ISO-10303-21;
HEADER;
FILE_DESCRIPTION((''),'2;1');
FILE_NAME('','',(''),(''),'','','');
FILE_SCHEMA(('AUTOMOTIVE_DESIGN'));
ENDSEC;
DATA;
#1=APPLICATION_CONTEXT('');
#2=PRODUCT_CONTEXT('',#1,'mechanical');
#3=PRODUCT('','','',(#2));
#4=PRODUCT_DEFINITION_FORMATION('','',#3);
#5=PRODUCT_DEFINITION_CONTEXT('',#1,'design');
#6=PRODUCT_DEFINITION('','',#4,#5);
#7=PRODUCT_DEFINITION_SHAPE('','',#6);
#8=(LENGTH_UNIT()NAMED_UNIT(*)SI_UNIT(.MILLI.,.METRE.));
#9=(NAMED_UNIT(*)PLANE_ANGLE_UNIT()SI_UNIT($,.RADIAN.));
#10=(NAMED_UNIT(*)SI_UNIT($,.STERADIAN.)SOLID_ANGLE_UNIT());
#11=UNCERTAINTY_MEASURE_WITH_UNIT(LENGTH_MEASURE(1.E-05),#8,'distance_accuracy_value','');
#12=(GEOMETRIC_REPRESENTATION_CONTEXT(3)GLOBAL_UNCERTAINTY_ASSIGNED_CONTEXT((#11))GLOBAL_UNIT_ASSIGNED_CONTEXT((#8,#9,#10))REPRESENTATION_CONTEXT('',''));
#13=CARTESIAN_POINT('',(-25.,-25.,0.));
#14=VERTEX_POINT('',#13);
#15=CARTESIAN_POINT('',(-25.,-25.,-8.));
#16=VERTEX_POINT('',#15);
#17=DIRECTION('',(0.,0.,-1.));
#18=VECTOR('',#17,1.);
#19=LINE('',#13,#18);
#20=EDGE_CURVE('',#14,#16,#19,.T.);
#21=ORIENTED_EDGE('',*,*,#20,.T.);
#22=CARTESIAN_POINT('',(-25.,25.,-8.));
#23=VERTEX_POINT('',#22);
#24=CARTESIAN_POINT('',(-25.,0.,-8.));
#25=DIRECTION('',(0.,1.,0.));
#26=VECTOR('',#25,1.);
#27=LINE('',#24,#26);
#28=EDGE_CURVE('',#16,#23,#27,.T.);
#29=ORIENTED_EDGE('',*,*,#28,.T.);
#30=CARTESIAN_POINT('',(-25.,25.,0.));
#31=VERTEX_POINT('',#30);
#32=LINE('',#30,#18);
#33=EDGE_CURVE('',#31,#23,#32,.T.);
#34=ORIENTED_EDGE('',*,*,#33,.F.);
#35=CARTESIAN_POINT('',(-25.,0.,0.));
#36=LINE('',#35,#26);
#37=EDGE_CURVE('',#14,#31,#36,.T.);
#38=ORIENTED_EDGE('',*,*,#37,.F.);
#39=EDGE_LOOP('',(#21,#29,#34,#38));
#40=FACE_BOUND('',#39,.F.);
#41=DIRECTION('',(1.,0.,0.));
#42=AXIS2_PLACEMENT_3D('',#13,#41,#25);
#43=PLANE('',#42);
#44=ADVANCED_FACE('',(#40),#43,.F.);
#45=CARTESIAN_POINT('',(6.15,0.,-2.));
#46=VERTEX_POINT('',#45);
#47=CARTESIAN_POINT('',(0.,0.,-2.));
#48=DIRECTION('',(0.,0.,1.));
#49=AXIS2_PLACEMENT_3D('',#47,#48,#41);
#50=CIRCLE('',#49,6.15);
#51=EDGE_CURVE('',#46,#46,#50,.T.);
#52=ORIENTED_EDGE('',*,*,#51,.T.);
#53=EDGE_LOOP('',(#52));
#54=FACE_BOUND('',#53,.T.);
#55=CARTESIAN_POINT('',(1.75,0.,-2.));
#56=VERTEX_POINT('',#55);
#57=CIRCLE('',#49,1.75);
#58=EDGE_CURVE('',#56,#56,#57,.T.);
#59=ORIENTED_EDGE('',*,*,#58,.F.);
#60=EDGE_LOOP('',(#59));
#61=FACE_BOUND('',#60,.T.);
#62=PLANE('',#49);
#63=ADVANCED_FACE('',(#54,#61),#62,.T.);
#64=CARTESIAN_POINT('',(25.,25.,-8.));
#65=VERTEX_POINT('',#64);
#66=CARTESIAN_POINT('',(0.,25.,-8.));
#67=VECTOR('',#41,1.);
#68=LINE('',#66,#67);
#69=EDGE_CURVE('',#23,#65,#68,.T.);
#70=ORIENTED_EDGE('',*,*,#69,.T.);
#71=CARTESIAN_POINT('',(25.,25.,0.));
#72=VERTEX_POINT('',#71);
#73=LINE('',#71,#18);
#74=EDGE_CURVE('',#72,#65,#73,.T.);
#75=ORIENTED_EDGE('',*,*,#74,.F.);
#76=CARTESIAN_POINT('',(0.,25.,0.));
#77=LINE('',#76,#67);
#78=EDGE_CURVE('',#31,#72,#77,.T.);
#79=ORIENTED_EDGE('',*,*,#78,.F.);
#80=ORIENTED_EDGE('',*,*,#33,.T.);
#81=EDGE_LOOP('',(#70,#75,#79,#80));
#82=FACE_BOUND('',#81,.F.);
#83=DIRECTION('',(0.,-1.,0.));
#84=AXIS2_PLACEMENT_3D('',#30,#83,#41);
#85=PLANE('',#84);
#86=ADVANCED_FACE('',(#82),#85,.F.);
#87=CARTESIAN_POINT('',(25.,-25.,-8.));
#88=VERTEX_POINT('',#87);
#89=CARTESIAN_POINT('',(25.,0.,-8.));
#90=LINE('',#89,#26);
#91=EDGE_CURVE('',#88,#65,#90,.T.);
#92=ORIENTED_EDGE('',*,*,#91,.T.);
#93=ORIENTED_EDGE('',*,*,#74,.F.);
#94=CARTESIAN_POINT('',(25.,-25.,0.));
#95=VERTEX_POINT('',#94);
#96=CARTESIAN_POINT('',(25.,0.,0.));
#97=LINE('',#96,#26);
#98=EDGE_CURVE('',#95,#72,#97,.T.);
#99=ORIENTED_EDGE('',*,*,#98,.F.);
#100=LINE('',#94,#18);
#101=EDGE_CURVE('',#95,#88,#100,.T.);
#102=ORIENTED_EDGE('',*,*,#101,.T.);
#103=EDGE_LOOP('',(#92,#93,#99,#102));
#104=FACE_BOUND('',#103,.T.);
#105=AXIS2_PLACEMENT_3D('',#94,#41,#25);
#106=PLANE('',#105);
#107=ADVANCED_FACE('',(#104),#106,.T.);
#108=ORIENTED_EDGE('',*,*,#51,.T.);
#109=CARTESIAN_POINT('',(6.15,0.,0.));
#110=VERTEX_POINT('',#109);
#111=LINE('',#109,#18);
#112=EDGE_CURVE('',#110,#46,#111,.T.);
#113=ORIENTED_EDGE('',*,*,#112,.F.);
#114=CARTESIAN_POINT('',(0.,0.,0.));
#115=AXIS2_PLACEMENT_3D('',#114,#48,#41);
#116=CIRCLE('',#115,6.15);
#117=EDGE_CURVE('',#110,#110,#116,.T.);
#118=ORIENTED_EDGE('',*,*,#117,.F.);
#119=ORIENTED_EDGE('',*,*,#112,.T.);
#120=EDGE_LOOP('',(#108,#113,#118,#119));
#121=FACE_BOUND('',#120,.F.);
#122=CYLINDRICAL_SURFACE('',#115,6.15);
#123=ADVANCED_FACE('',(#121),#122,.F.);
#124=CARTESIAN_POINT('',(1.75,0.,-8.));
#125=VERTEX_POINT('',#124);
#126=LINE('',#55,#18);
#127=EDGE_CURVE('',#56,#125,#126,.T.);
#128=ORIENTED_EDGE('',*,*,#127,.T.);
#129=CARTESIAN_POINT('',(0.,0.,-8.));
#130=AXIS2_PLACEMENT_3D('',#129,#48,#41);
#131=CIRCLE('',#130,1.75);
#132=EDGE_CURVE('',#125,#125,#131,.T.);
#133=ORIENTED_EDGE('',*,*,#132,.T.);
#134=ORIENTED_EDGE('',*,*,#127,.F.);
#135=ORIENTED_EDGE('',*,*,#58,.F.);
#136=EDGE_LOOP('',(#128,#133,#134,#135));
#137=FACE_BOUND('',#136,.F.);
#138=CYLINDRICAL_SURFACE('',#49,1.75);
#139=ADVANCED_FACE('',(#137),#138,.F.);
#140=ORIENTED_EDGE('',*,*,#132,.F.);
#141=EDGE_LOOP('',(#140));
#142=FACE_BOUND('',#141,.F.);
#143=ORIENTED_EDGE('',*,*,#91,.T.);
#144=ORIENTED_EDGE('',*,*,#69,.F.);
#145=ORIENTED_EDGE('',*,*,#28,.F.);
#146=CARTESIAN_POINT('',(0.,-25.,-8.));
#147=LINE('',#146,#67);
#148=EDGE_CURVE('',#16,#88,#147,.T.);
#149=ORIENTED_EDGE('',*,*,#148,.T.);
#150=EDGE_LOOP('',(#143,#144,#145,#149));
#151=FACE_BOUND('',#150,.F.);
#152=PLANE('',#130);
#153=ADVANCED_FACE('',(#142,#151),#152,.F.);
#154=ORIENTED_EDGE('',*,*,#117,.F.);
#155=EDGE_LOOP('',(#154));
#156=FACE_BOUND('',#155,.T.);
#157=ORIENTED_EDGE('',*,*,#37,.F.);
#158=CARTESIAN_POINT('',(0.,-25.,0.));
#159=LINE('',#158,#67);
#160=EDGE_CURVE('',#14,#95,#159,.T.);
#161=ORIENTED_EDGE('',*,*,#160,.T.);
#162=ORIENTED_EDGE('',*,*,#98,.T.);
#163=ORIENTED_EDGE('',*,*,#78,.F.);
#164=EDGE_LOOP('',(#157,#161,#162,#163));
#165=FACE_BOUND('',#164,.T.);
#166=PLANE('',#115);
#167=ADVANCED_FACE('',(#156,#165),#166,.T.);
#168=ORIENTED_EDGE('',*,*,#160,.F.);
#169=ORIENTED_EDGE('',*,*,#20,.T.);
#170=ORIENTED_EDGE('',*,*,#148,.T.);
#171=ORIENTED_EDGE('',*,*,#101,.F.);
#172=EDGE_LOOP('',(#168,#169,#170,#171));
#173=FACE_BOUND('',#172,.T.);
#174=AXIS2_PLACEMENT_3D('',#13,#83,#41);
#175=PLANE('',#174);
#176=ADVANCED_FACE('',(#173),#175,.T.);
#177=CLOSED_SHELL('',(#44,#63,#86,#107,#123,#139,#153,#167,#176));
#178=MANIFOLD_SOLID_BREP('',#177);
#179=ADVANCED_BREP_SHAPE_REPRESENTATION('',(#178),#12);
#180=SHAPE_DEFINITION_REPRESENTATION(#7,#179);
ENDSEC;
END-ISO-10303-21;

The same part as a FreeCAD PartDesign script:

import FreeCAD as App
import Part
import Sketcher
from FreeCAD import Vector


def add_polygon(sketch, points):
    """Adds a closed chain of lines whose ends are joined by coincident constraints."""
    first, n = sketch.GeometryCount, len(points)
    for a, b in zip(points, points[1:] + points[:1]):
        sketch.addGeometry(Part.LineSegment(App.Vector(*a, 0), App.Vector(*b, 0)), False)
    for i in range(n):
        sketch.addConstraint(Sketcher.Constraint("Coincident", first + i, 2, first + (i + 1) % n, 1))

doc = App.newDocument("Part")
body = doc.addObject("PartDesign::Body", "Body")

sketch1 = body.newObject("Sketcher::SketchObject", "Sketch")
sketch1.AttachmentSupport = (doc.getObject("XY_Plane"), [""])
sketch1.MapMode = "FlatFace"
add_polygon(sketch1, [(-25, 25), (-25, -25), (25, -25), (25, 25)])
sketch1.addConstraint([
    Sketcher.Constraint("Vertical", 0),
    Sketcher.Constraint("Horizontal", 1),
    Sketcher.Constraint("Vertical", 2),
    Sketcher.Constraint("Horizontal", 3),
    Sketcher.Constraint("Symmetric", 0, 2, 2, 2, -1, 1),
    Sketcher.Constraint("Equal", 3, 0),
    Sketcher.Constraint("DistanceX", 1, 1, 1, 2, 50.0),
])
pad1 = body.newObject("PartDesign::Pad", "Pad")
pad1.Profile = sketch1
pad1.Length = 8
pad1.Reversed = True

sketch2 = body.newObject("Sketcher::SketchObject", "Sketch001")
sketch2.AttachmentSupport = (doc.getObject("XY_Plane"), [""])
sketch2.MapMode = "FlatFace"
sketch2.addGeometry(Part.Circle(Vector(0, 0, 0), Vector(0, 0, 1), 6), False)
sketch2.addConstraint([
    Sketcher.Constraint("Coincident", 0, 3, -1, 1),
    Sketcher.Constraint("Diameter", 0, 12.3),
])
pocket1 = body.newObject("PartDesign::Pocket", "Pocket")
pocket1.Profile = sketch2
pocket1.Length = 2

sketch3 = body.newObject("Sketcher::SketchObject", "Sketch002")
sketch3.AttachmentSupport = (doc.getObject("XY_Plane"), [""])
sketch3.MapMode = "FlatFace"
sketch3.AttachmentOffset = App.Placement(Vector(0, 0, -2), App.Rotation())
sketch3.addGeometry(Part.Circle(Vector(0, 0, 0), Vector(0, 0, 1), 1.8), False)
sketch3.addConstraint([
    Sketcher.Constraint("Coincident", 0, 3, -1, 1),
    Sketcher.Constraint("Diameter", 0, 3.5),
])
pocket2 = body.newObject("PartDesign::Pocket", "Pocket001")
pocket2.Profile = sketch3
pocket2.Type = "ThroughAll"

doc.recompute()
